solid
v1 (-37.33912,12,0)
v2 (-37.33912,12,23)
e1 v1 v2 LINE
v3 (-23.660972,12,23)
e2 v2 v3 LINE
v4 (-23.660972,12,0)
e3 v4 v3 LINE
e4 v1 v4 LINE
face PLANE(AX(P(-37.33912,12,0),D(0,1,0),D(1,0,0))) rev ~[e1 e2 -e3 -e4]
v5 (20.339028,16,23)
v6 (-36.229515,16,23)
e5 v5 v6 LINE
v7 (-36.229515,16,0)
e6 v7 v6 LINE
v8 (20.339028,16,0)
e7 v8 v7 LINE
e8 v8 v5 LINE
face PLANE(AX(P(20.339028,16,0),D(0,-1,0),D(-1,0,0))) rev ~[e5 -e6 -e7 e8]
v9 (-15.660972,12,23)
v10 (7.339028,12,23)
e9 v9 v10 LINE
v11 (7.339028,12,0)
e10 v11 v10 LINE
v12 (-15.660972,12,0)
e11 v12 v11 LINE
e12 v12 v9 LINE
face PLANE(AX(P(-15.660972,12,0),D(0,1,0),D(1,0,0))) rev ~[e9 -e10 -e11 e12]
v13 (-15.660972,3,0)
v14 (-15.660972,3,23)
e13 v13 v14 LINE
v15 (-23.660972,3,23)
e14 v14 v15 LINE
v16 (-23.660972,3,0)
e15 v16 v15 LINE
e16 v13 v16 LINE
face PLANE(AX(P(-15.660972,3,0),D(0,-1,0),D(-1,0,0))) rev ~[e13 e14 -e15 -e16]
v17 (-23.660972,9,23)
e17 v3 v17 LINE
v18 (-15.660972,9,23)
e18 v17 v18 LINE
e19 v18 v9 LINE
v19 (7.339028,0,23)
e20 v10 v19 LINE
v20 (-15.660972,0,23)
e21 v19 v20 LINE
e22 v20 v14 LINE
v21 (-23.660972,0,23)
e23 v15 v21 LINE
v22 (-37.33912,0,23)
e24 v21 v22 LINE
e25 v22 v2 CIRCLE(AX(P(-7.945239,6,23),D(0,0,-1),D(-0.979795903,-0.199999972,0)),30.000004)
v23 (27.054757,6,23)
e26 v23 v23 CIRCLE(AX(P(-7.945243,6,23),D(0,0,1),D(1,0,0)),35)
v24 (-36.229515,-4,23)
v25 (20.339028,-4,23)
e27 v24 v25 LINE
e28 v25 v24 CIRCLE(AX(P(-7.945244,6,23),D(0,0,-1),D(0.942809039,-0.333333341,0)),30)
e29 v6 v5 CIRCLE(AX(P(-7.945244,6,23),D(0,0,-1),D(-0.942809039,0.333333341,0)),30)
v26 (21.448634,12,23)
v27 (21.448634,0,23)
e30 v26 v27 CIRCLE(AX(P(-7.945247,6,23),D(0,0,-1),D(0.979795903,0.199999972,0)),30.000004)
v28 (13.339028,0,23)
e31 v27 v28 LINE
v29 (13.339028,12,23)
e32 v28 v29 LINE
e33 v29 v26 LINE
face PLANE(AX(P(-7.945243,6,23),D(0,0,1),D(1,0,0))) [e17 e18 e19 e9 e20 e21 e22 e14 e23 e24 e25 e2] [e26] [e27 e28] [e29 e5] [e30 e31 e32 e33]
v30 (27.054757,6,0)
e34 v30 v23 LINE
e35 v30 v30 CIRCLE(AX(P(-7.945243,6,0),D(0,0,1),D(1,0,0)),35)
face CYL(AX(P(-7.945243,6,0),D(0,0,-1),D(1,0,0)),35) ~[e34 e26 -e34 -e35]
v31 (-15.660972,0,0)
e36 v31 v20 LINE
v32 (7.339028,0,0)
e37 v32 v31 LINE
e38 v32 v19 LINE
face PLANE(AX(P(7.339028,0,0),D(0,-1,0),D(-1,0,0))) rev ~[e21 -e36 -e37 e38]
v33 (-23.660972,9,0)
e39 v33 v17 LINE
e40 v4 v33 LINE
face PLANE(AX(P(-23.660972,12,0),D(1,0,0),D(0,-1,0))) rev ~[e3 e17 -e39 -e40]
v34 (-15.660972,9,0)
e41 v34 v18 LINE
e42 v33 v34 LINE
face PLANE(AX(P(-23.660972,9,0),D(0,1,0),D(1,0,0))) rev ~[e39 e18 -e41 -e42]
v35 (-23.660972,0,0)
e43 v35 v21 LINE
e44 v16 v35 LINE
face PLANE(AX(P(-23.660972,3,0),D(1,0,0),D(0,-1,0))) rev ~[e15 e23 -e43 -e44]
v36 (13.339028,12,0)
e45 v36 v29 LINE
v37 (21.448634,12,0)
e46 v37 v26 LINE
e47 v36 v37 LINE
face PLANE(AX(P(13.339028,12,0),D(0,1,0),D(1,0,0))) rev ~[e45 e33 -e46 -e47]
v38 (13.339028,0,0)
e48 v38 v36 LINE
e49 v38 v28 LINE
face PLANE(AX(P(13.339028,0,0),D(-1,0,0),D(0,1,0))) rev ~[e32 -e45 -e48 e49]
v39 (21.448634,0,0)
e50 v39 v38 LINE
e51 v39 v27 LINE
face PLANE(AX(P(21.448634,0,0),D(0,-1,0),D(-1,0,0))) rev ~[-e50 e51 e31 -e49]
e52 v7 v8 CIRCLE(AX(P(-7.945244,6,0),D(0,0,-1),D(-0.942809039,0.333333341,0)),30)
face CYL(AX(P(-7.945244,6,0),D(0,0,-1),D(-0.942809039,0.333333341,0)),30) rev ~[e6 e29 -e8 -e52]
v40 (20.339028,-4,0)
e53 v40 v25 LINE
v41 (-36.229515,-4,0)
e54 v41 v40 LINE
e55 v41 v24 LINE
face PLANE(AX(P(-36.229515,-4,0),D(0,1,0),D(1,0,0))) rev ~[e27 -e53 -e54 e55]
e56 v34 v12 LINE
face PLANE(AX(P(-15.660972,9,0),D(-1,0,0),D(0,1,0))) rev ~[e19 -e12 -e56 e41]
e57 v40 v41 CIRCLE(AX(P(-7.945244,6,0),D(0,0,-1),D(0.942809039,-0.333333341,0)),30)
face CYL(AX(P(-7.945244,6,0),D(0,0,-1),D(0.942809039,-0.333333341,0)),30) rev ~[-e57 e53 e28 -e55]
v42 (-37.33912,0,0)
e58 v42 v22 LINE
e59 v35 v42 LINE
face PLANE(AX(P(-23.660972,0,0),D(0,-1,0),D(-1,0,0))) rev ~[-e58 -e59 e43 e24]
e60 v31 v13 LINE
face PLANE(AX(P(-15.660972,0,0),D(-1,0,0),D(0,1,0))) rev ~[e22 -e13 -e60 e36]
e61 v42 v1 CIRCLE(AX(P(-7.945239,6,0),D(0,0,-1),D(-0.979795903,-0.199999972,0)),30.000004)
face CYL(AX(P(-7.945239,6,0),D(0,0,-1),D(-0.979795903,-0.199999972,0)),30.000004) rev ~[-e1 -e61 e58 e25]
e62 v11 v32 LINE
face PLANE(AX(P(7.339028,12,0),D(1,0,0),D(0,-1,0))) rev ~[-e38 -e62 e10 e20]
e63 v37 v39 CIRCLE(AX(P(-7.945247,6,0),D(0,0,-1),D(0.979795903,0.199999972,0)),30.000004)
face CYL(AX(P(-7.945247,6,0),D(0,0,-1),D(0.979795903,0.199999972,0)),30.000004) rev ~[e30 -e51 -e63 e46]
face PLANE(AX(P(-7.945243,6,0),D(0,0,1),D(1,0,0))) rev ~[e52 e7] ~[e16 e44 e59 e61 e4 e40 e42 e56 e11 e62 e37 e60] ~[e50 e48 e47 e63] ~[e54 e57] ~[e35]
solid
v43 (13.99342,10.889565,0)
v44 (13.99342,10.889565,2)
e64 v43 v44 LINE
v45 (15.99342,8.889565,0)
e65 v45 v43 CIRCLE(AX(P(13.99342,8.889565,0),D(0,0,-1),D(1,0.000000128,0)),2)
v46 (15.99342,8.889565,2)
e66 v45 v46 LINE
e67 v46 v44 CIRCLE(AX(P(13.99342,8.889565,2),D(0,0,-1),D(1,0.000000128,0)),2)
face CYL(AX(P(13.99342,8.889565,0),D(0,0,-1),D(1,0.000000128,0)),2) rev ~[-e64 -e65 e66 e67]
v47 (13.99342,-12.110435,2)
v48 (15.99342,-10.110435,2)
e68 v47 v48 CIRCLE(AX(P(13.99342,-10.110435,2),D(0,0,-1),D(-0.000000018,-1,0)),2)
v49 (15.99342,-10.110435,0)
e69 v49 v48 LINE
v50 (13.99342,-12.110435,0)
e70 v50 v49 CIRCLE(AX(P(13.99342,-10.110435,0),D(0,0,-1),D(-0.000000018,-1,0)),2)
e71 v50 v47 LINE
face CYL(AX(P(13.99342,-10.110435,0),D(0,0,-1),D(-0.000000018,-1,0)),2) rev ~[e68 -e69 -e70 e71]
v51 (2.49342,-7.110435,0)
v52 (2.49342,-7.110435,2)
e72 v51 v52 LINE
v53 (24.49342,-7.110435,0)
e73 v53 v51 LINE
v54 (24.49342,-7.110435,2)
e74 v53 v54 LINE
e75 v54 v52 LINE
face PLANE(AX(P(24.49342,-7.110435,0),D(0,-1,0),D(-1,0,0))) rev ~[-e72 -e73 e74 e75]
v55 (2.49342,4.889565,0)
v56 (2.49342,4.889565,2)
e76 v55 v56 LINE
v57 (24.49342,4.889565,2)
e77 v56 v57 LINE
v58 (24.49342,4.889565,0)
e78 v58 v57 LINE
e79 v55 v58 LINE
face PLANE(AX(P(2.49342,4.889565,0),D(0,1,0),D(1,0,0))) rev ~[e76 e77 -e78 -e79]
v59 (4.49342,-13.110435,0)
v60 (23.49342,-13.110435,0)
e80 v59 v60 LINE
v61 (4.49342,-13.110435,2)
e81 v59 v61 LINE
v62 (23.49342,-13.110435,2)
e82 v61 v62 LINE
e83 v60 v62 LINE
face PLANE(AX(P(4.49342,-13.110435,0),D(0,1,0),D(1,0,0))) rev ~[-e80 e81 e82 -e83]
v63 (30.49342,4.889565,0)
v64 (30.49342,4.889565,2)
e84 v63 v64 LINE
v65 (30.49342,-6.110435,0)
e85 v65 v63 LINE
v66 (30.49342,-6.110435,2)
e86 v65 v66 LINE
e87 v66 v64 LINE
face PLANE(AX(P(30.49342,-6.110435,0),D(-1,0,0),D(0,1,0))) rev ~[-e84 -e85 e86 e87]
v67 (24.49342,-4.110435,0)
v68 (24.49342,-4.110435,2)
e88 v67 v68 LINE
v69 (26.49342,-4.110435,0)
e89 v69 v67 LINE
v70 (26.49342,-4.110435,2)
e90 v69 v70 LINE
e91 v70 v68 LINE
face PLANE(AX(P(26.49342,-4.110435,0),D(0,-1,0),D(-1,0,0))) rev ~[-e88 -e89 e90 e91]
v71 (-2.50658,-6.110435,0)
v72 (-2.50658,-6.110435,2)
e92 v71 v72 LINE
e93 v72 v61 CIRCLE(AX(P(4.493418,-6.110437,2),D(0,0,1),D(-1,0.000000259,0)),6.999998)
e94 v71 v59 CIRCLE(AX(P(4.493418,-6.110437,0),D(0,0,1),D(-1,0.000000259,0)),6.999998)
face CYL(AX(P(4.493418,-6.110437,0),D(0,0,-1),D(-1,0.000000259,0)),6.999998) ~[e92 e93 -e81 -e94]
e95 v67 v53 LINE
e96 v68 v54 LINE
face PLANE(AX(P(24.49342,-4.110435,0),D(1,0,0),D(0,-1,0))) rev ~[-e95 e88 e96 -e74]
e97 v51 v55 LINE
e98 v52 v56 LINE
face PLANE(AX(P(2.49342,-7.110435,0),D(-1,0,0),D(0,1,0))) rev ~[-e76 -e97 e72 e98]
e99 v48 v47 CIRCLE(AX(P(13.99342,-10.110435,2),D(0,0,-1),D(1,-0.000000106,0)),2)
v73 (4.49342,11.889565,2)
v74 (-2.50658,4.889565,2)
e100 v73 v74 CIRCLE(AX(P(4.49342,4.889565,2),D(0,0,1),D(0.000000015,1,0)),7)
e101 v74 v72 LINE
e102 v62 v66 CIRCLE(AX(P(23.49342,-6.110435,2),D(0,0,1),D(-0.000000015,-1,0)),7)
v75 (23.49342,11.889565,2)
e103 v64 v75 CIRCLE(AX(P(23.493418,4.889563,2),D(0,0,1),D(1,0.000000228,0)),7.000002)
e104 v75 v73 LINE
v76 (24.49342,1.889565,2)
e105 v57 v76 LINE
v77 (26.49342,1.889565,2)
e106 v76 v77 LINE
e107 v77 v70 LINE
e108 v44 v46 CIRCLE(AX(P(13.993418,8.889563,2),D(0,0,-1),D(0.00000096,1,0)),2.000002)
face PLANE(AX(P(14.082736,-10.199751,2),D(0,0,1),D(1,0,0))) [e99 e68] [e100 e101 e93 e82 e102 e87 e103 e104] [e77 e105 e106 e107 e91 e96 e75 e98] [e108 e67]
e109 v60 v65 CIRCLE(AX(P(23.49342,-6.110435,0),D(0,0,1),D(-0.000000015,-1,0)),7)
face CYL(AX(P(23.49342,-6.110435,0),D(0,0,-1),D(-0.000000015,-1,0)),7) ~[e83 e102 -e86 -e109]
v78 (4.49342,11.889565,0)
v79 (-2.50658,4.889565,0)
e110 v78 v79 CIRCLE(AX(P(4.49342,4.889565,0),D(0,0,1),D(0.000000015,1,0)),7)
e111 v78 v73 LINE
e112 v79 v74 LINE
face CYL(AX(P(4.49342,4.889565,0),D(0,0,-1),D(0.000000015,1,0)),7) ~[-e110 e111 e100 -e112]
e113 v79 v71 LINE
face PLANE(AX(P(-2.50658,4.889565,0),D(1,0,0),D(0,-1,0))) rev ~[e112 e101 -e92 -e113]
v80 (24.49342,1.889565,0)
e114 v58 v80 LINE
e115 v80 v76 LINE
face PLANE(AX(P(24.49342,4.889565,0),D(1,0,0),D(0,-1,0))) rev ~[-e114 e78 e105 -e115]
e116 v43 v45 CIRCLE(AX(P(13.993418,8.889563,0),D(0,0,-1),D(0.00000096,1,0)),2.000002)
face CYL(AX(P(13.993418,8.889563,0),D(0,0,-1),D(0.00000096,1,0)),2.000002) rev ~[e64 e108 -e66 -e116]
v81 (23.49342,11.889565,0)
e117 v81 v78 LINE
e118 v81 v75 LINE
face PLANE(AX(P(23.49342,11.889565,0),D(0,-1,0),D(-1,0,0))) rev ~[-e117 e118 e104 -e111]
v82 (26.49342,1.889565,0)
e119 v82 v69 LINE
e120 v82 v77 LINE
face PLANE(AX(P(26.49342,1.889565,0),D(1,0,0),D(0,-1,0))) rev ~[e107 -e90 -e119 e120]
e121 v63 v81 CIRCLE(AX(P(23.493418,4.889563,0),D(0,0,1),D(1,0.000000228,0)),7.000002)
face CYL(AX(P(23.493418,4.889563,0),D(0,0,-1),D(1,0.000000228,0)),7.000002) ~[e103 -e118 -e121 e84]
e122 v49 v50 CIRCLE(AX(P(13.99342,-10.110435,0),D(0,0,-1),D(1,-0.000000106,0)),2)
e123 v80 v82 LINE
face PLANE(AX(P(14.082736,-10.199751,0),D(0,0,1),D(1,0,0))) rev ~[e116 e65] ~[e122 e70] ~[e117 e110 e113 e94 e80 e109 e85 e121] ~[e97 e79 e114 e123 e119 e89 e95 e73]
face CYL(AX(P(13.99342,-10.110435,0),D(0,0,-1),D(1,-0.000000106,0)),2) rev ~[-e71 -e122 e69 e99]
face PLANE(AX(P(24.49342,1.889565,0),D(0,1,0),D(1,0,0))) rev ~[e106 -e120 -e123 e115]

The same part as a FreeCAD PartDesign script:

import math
import FreeCAD as App
import Part
import Sketcher
from FreeCAD import Vector
Q = App.Units.Quantity

doc = App.newDocument("Part")
body = doc.addObject("PartDesign::Body", "Body")

sketch1 = body.newObject("Sketcher::SketchObject", "Sketch")
sketch1.AttachmentSupport = (doc.getObject("XY_Plane"), [""])
sketch1.MapMode = "FlatFace"
sketch1.addGeometry([
    Part.ArcOfCircle(Part.Circle(Vector(4.49342, 4.889565, 0), Vector(0, 0, 1), 7), math.radians(89.999999), math.radians(180.000001)),
    Part.LineSegment(Vector(-2.50658, 4.889565, 0), Vector(-2.50658, -6.110435, 0)),
    Part.ArcOfCircle(Part.Circle(Vector(4.493418, -6.110437, 0), Vector(0, 0, 1), 6.999998), math.radians(179.999985), math.radians(270.000015)),
    Part.LineSegment(Vector(4.49342, -13.110435, 0), Vector(23.49342, -13.110435, 0)),
    Part.ArcOfCircle(Part.Circle(Vector(23.49342, -6.110435, 0), Vector(0, 0, 1), 7), math.radians(-90.000001), math.radians(0.000001)),
    Part.LineSegment(Vector(30.49342, -6.110435, 0), Vector(30.49342, 4.889565, 0)),
    Part.ArcOfCircle(Part.Circle(Vector(23.493418, 4.889563, 0), Vector(0, 0, 1), 7.000002), math.radians(0.000013), math.radians(89.999987)),
    Part.LineSegment(Vector(23.49342, 11.889565, 0), Vector(4.49342, 11.889565, 0)),
    Part.ArcOfCircle(Part.Circle(Vector(13.99342, -10.110435, 0), Vector(0, 0, 1), 2), math.radians(0.000001), math.radians(269.999999)),
    Part.ArcOfCircle(Part.Circle(Vector(13.99342, -10.110435, 0), Vector(0, 0, 1), 2), math.radians(-89.999994), math.radians(-0.000006)),
    Part.LineSegment(Vector(24.49342, -7.110435, 0), Vector(2.49342, -7.110435, 0)),
    Part.LineSegment(Vector(2.49342, -7.110435, 0), Vector(2.49342, 4.889565, 0)),
    Part.LineSegment(Vector(2.49342, 4.889565, 0), Vector(24.49342, 4.889565, 0)),
    Part.LineSegment(Vector(24.49342, 4.889565, 0), Vector(24.49342, 1.889565, 0)),
    Part.LineSegment(Vector(24.49342, 1.889565, 0), Vector(26.49342, 1.889565, 0)),
    Part.LineSegment(Vector(26.49342, 1.889565, 0), Vector(26.49342, -4.110435, 0)),
    Part.LineSegment(Vector(26.49342, -4.110435, 0), Vector(24.49342, -4.110435, 0)),
    Part.LineSegment(Vector(24.49342, -4.110435, 0), Vector(24.49342, -7.110435, 0)),
    Part.ArcOfCircle(Part.Circle(Vector(13.993418, 8.889563, 0), Vector(0, 0, 1), 2.000002), math.radians(0.000055), math.radians(89.999945)),
    Part.ArcOfCircle(Part.Circle(Vector(13.99342, 8.889565, 0), Vector(0, 0, 1), 2), math.radians(89.999993), math.radians(360.000007)),
], False)
sketch1.addConstraint([
    Sketcher.Constraint("Tangent", 0, 2, 1, 1),
    Sketcher.Constraint("Tangent", 1, 2, 2, 1),
    Sketcher.Constraint("Tangent", 2, 2, 3, 1),
    Sketcher.Constraint("Tangent", 3, 2, 4, 1),
    Sketcher.Constraint("Tangent", 4, 2, 5, 1),
    Sketcher.Constraint("Tangent", 5, 2, 6, 1),
    Sketcher.Constraint("Tangent", 6, 2, 7, 1),
    Sketcher.Constraint("Tangent", 7, 2, 0, 1),
    Sketcher.Constraint("Tangent", 8, 1, 9, 2),
    Sketcher.Constraint("Coincident", 9, 1, 8, 2),
    Sketcher.Constraint("Coincident", 10, 2, 11, 1),
    Sketcher.Constraint("Coincident", 11, 2, 12, 1),
    Sketcher.Constraint("Coincident", 12, 2, 13, 1),
    Sketcher.Constraint("Coincident", 13, 2, 14, 1),
    Sketcher.Constraint("Coincident", 14, 2, 15, 1),
    Sketcher.Constraint("Coincident", 15, 2, 16, 1),
    Sketcher.Constraint("Coincident", 16, 2, 17, 1),
    Sketcher.Constraint("Coincident", 17, 2, 10, 1),
    Sketcher.Constraint("Tangent", 18, 1, 19, 2),
    Sketcher.Constraint("Coincident", 19, 1, 18, 2),
    Sketcher.Constraint("Vertical", 1),
    Sketcher.Constraint("Horizontal", 3),
    Sketcher.Constraint("Vertical", 5),
    Sketcher.Constraint("Horizontal", 7),
    Sketcher.Constraint("Horizontal", 10),
    Sketcher.Constraint("Vertical", 11),
    Sketcher.Constraint("Horizontal", 12),
    Sketcher.Constraint("Vertical", 13),
    Sketcher.Constraint("Horizontal", 14),
    Sketcher.Constraint("Vertical", 15),
    Sketcher.Constraint("Horizontal", 16),
    Sketcher.Constraint("Vertical", 17),
    Sketcher.Constraint("Equal", 0, 2),
    Sketcher.Constraint("Equal", 2, 4),
    Sketcher.Constraint("Equal", 4, 6),
    Sketcher.Constraint("Equal", 9, 18),
    Sketcher.Constraint("Horizontal", 9, 3, 8, 1),
    Sketcher.Constraint("Horizontal", 5, 2, 11, 2),
    Sketcher.Constraint("Horizontal", 19, 3, 18, 1),
    Sketcher.Constraint("Vertical", 9, 3, 18, 3),
    Sketcher.Constraint("Vertical", 19, 3, 9, 1),
    Sketcher.Constraint("Vertical", 13, 2, 16, 2),
    Sketcher.Constraint("Vertical", 9, 1, 19, 1),
    Sketcher.Constraint("Equal", 13, 17),
    Sketcher.Constraint("Radius", 0, Q("7 mm")),
    Sketcher.Constraint("Radius", 8, Q("2 mm")),
    Sketcher.Constraint("DistanceX", 3, 1, 3, 2, Q("19 mm")),
    Sketcher.Constraint("DistanceX", 10, 2, 10, 1, Q("22 mm")),
    Sketcher.Constraint("DistanceX", 14, 1, 14, 2, Q("2 mm")),
    Sketcher.Constraint("DistanceY", 1, 2, 1, 1, Q("11 mm")),
    Sketcher.Constraint("DistanceY", 11, 1, 11, 2, Q("12 mm")),
    Sketcher.Constraint("DistanceY", 13, 2, 13, 1, Q("3 mm")),
    Sketcher.Constraint("DistanceY", 8, 3, 4, 3, Q("4 mm")),
    Sketcher.Constraint("DistanceY", 6, 3, 18, 3, Q("4 mm")),
    Sketcher.Constraint("DistanceX", 10, 2, 2, 3, Q("1.999998 mm")),
    Sketcher.Constraint("DistanceX", 8, 3, 4, 3, Q("9.5 mm")),
    Sketcher.Constraint("DistanceX", -1, 1, 0, 3, Q("4.49342 mm")),
    Sketcher.Constraint("DistanceY", -1, 1, 0, 3, Q("4.889565 mm")),
])
pad1 = body.newObject("PartDesign::Pad", "Pad")
pad1.Profile = sketch1
pad1.Length = 2
body2 = doc.addObject("PartDesign::Body", "Body001")

sketch2 = body2.newObject("Sketcher::SketchObject", "Sketch001")
sketch2.AttachmentSupport = (doc.getObject("XY_Plane001"), [""])
sketch2.MapMode = "FlatFace"
sketch2.addGeometry([
    Part.Circle(Vector(-7.945243, 6, 0), Vector(0, 0, 1), 35),
    Part.LineSegment(Vector(-36.229515, -4, 0), Vector(20.339028, -4, 0)),
    Part.ArcOfCircle(Part.Circle(Vector(-7.945244, 6, 0), Vector(0, 0, 1), 30), math.radians(-160.528779), math.radians(-19.471221)),
    Part.LineSegment(Vector(-23.660972, 0, 0), Vector(-37.33912, 0, 0)),
    Part.ArcOfCircle(Part.Circle(Vector(-7.945239, 6, 0), Vector(0, 0, 1), 30.000004), math.radians(168.463043), math.radians(191.536957)),
    Part.LineSegment(Vector(-37.33912, 12, 0), Vector(-23.660972, 12, 0)),
    Part.LineSegment(Vector(-23.660972, 12, 0), Vector(-23.660972, 9, 0)),
    Part.LineSegment(Vector(-23.660972, 9, 0), Vector(-15.660972, 9, 0)),
    Part.LineSegment(Vector(-15.660972, 9, 0), Vector(-15.660972, 12, 0)),
    Part.LineSegment(Vector(-15.660972, 12, 0), Vector(7.339028, 12, 0)),
    Part.LineSegment(Vector(7.339028, 12, 0), Vector(7.339028, 0, 0)),
    Part.LineSegment(Vector(7.339028, 0, 0), Vector(-15.660972, 0, 0)),
    Part.LineSegment(Vector(-15.660972, 0, 0), Vector(-15.660972, 3, 0)),
    Part.LineSegment(Vector(-15.660972, 3, 0), Vector(-23.660972, 3, 0)),
    Part.LineSegment(Vector(-23.660972, 3, 0), Vector(-23.660972, 0, 0)),
    Part.ArcOfCircle(Part.Circle(Vector(-7.945244, 6, 0), Vector(0, 0, 1), 30), math.radians(19.471221), math.radians(160.528779)),
    Part.LineSegment(Vector(20.339028, 16, 0), Vector(-36.229515, 16, 0)),
    Part.ArcOfCircle(Part.Circle(Vector(-7.945247, 6, 0), Vector(0, 0, 1), 30.000004), math.radians(-11.536957), math.radians(11.536957)),
    Part.LineSegment(Vector(21.448634, 0, 0), Vector(13.339028, 0, 0)),
    Part.LineSegment(Vector(13.339028, 0, 0), Vector(13.339028, 12, 0)),
    Part.LineSegment(Vector(13.339028, 12, 0), Vector(21.448634, 12, 0)),
], False)
sketch2.addConstraint([
    Sketcher.Constraint("Coincident", 1, 1, 2, 1),
    Sketcher.Constraint("Coincident", 2, 2, 1, 2),
    Sketcher.Constraint("Coincident", 3, 2, 4, 2),
    Sketcher.Constraint("Coincident", 4, 1, 5, 1),
    Sketcher.Constraint("Coincident", 5, 2, 6, 1),
    Sketcher.Constraint("Coincident", 6, 2, 7, 1),
    Sketcher.Constraint("Coincident", 7, 2, 8, 1),
    Sketcher.Constraint("Coincident", 8, 2, 9, 1),
    Sketcher.Constraint("Coincident", 9, 2, 10, 1),
    Sketcher.Constraint("Coincident", 10, 2, 11, 1),
    Sketcher.Constraint("Coincident", 11, 2, 12, 1),
    Sketcher.Constraint("Coincident", 12, 2, 13, 1),
    Sketcher.Constraint("Coincident", 13, 2, 14, 1),
    Sketcher.Constraint("Coincident", 14, 2, 3, 1),
    Sketcher.Constraint("Coincident", 15, 1, 16, 1),
    Sketcher.Constraint("Coincident", 16, 2, 15, 2),
    Sketcher.Constraint("Coincident", 17, 1, 18, 1),
    Sketcher.Constraint("Coincident", 18, 2, 19, 1),
    Sketcher.Constraint("Coincident", 19, 2, 20, 1),
    Sketcher.Constraint("Coincident", 20, 2, 17, 2),
    Sketcher.Constraint("Horizontal", 1),
    Sketcher.Constraint("Horizontal", 3),
    Sketcher.Constraint("Horizontal", 5),
    Sketcher.Constraint("Vertical", 6),
    Sketcher.Constraint("Horizontal", 7),
    Sketcher.Constraint("Vertical", 8),
    Sketcher.Constraint("Horizontal", 9),
    Sketcher.Constraint("Vertical", 10),
    Sketcher.Constraint("Horizontal", 11),
    Sketcher.Constraint("Vertical", 12),
    Sketcher.Constraint("Horizontal", 13),
    Sketcher.Constraint("Vertical", 14),
    Sketcher.Constraint("Horizontal", 16),
    Sketcher.Constraint("Horizontal", 18),
    Sketcher.Constraint("Vertical", 19),
    Sketcher.Constraint("Horizontal", 20),
    Sketcher.Constraint("Coincident", 2, 3, 0, 3),
    Sketcher.Constraint("Coincident", 4, 3, 0, 3),
    Sketcher.Constraint("Coincident", 15, 3, 0, 3),
    Sketcher.Constraint("Coincident", 17, 3, 0, 3),
    Sketcher.Constraint("Equal", 2, 15),
    Sketcher.Constraint("Equal", 4, 17),
    Sketcher.Constraint("PointOnObject", 3, 2, -1),
    Sketcher.Constraint("PointOnObject", 10, 2, -1),
    Sketcher.Constraint("PointOnObject", 17, 1, -1),
    Sketcher.Constraint("Horizontal", 5, 2, 8, 2),
    Sketcher.Constraint("Horizontal", 9, 2, 19, 2),
    Sketcher.Constraint("Vertical", 3, 2, 4, 1),
    Sketcher.Constraint("Vertical", 8, 2, 11, 2),
    Sketcher.Constraint("Vertical", 6, 2, 13, 2),
    Sketcher.Constraint("Vertical", 2, 2, 15, 1),
    Sketcher.Constraint("Equal", 8, 12),
    Sketcher.Constraint("Diameter", 0, Q("70 mm")),
    Sketcher.Constraint("Radius", 2, Q("30 mm")),
    Sketcher.Constraint("DistanceX", 7, 1, 7, 2, Q("8 mm")),
    Sketcher.Constraint("DistanceX", 9, 1, 9, 2, Q("23 mm")),
    Sketcher.Constraint("DistanceY", 6, 2, 6, 1, Q("3 mm")),
    Sketcher.Constraint("DistanceY", 10, 2, 10, 1, Q("12 mm")),
    Sketcher.Constraint("DistanceY", 1, 1, -1, 1, Q("4 mm")),
    Sketcher.Constraint("DistanceX", 10, 2, 2, 2, Q("13 mm")),
    Sketcher.Constraint("DistanceX", 10, 2, 18, 2, Q("6 mm")),
    Sketcher.Constraint("Radius", 4, Q("30.000004 mm")),
    Sketcher.Constraint("DistanceX", 4, 3, -1, 1, Q("7.945239 mm")),
])
pad2 = body2.newObject("PartDesign::Pad", "Pad001")
pad2.Profile = sketch2
pad2.Length = 23

doc.recompute()
